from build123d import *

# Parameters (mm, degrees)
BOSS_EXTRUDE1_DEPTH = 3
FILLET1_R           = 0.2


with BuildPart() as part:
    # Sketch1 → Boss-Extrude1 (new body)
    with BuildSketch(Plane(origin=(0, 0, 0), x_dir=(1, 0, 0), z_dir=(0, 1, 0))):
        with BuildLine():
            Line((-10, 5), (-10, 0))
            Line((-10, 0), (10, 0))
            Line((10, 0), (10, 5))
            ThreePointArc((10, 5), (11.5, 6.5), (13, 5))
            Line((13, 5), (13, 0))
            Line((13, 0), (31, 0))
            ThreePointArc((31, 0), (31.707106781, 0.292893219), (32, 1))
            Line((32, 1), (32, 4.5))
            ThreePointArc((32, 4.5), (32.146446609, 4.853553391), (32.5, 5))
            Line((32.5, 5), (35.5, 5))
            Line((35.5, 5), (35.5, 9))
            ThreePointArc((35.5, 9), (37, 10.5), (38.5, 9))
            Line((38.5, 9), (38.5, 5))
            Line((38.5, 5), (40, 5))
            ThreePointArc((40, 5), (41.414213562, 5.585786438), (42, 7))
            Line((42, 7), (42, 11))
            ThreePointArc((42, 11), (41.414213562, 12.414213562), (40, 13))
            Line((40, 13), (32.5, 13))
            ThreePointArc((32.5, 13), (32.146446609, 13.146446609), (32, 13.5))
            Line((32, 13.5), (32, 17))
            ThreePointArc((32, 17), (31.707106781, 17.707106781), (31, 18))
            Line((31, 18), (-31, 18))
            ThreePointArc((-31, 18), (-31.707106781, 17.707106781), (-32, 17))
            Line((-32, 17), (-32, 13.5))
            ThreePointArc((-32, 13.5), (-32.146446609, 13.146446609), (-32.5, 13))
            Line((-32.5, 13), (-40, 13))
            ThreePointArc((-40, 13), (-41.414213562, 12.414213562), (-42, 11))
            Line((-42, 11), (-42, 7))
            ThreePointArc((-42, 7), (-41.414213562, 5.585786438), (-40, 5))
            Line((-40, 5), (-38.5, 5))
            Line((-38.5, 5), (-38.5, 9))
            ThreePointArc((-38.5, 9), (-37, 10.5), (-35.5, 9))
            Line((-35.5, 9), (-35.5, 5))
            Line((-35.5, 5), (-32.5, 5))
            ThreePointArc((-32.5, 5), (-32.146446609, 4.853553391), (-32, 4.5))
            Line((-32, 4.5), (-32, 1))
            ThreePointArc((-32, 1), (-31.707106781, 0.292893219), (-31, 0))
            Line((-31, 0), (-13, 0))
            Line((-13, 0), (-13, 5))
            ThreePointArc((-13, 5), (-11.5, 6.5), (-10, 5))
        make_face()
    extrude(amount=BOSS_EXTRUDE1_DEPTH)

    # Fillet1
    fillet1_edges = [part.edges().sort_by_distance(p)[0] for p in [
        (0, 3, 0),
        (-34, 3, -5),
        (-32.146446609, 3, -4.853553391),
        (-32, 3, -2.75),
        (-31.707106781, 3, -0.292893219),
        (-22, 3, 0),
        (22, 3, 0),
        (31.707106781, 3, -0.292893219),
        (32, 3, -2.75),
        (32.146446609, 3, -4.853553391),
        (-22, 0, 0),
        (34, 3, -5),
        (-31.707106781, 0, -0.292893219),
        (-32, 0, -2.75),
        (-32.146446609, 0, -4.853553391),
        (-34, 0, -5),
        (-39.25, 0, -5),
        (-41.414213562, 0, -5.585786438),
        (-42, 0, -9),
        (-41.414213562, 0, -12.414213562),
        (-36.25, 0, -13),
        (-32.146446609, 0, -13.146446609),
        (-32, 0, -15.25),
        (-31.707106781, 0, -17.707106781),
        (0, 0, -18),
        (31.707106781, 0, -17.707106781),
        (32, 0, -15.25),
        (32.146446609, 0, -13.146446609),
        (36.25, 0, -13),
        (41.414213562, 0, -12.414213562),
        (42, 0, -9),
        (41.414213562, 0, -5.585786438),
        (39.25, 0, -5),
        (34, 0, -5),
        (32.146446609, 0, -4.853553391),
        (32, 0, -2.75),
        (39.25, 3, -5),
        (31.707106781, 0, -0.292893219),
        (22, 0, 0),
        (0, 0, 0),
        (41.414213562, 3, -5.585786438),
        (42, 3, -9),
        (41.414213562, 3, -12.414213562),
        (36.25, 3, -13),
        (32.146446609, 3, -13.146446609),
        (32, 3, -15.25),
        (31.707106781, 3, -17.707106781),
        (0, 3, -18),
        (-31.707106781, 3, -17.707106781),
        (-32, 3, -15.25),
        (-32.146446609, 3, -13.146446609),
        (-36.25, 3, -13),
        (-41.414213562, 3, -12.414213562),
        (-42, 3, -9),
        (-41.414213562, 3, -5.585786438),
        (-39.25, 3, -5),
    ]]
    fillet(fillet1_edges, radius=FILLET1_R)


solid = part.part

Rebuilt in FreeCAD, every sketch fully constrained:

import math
import FreeCAD as App
import Part
import Sketcher

V = App.Vector


def edges_at(feature, points):
    """Names of the edges that pass closest to the given points."""
    edges = feature.Shape.Edges
    near = lambda p: min(range(len(edges)), key=lambda i: edges[i].distToShape(Part.Vertex(*p))[0])
    return sorted({f"Edge{near(p) + 1}" for p in points})

doc = App.newDocument("Part")
body = doc.addObject("PartDesign::Body", "Body")

# Sketch on XZ plane
sketch1 = body.newObject("Sketcher::SketchObject", "Sketch")
sketch1.AttachmentSupport = (doc.getObject("XZ_Plane"), [""])
sketch1.MapMode = "FlatFace"
sketch1.addGeometry(Part.LineSegment(V(-10, -5, 0), V(-10, 0, 0)), False)
sketch1.addGeometry(Part.LineSegment(V(-10, 0, 0), V(10, 0, 0)), False)
sketch1.addGeometry(Part.LineSegment(V(10, 0, 0), V(10, -5, 0)), False)
sketch1.addGeometry(Part.ArcOfCircle(Part.Circle(V(11.5, -5, 0), V(0, 0, 1), 1.5), math.radians(180), math.radians(360)), False)
sketch1.addGeometry(Part.LineSegment(V(13, -5, 0), V(13, 0, 0)), False)
sketch1.addGeometry(Part.LineSegment(V(13, 0, 0), V(31, 0, 0)), False)
sketch1.addGeometry(Part.ArcOfCircle(Part.Circle(V(31, -1, 0), V(0, 0, 1), 1), math.radians(0), math.radians(90)), False)
sketch1.addGeometry(Part.LineSegment(V(32, -1, 0), V(32, -4.5, 0)), False)
sketch1.addGeometry(Part.ArcOfCircle(Part.Circle(V(32.5, -4.5, 0), V(0, 0, 1), 0.5), math.radians(180), math.radians(270)), False)
sketch1.addGeometry(Part.LineSegment(V(32.5, -5, 0), V(35.5, -5, 0)), False)
sketch1.addGeometry(Part.LineSegment(V(35.5, -5, 0), V(35.5, -9, 0)), False)
sketch1.addGeometry(Part.ArcOfCircle(Part.Circle(V(37, -9, 0), V(0, 0, 1), 1.5), math.radians(180), math.radians(360)), False)
sketch1.addGeometry(Part.LineSegment(V(38.5, -9, 0), V(38.5, -5, 0)), False)
sketch1.addGeometry(Part.LineSegment(V(38.5, -5, 0), V(40, -5, 0)), False)
sketch1.addGeometry(Part.ArcOfCircle(Part.Circle(V(40, -7, 0), V(0, 0, 1), 2), math.radians(0), math.radians(90)), False)
sketch1.addGeometry(Part.LineSegment(V(42, -7, 0), V(42, -11, 0)), False)
sketch1.addGeometry(Part.ArcOfCircle(Part.Circle(V(40, -11, 0), V(0, 0, 1), 2), math.radians(-90), math.radians(0)), False)
sketch1.addGeometry(Part.LineSegment(V(40, -13, 0), V(32.5, -13, 0)), False)
sketch1.addGeometry(Part.ArcOfCircle(Part.Circle(V(32.5, -13.5, 0), V(0, 0, 1), 0.5), math.radians(90), math.radians(180)), False)
sketch1.addGeometry(Part.LineSegment(V(32, -13.5, 0), V(32, -17, 0)), False)
sketch1.addGeometry(Part.ArcOfCircle(Part.Circle(V(31, -17, 0), V(0, 0, 1), 1), math.radians(-90), math.radians(0)), False)
sketch1.addGeometry(Part.LineSegment(V(31, -18, 0), V(-31, -18, 0)), False)
sketch1.addGeometry(Part.ArcOfCircle(Part.Circle(V(-31, -17, 0), V(0, 0, 1), 1), math.radians(-180), math.radians(-90)), False)
sketch1.addGeometry(Part.LineSegment(V(-32, -17, 0), V(-32, -13.5, 0)), False)
sketch1.addGeometry(Part.ArcOfCircle(Part.Circle(V(-32.5, -13.5, 0), V(0, 0, 1), 0.5), math.radians(0), math.radians(90)), False)
sketch1.addGeometry(Part.LineSegment(V(-32.5, -13, 0), V(-40, -13, 0)), False)
sketch1.addGeometry(Part.ArcOfCircle(Part.Circle(V(-40, -11, 0), V(0, 0, 1), 2), math.radians(-180), math.radians(-90)), False)
sketch1.addGeometry(Part.LineSegment(V(-42, -11, 0), V(-42, -7, 0)), False)
sketch1.addGeometry(Part.ArcOfCircle(Part.Circle(V(-40, -7, 0), V(0, 0, 1), 2), math.radians(90), math.radians(180)), False)
sketch1.addGeometry(Part.LineSegment(V(-40, -5, 0), V(-38.5, -5, 0)), False)
sketch1.addGeometry(Part.LineSegment(V(-38.5, -5, 0), V(-38.5, -9, 0)), False)
sketch1.addGeometry(Part.ArcOfCircle(Part.Circle(V(-37, -9, 0), V(0, 0, 1), 1.5), math.radians(180), math.radians(360)), False)
sketch1.addGeometry(Part.LineSegment(V(-35.5, -9, 0), V(-35.5, -5, 0)), False)
sketch1.addGeometry(Part.LineSegment(V(-35.5, -5, 0), V(-32.5, -5, 0)), False)
sketch1.addGeometry(Part.ArcOfCircle(Part.Circle(V(-32.5, -4.5, 0), V(0, 0, 1), 0.5), math.radians(-90), math.radians(0)), False)
sketch1.addGeometry(Part.LineSegment(V(-32, -4.5, 0), V(-32, -1, 0)), False)
sketch1.addGeometry(Part.ArcOfCircle(Part.Circle(V(-31, -1, 0), V(0, 0, 1), 1), math.radians(90), math.radians(180)), False)
sketch1.addGeometry(Part.LineSegment(V(-31, 0, 0), V(-13, 0, 0)), False)
sketch1.addGeometry(Part.LineSegment(V(-13, 0, 0), V(-13, -5, 0)), False)
sketch1.addGeometry(Part.ArcOfCircle(Part.Circle(V(-11.5, -5, 0), V(0, 0, 1), 1.5), math.radians(180), math.radians(360)), False)
sketch1.addConstraint(Sketcher.Constraint("Coincident", 0, 2, 1, 1))
sketch1.addConstraint(Sketcher.Constraint("Coincident", 1, 2, 2, 1))
sketch1.addConstraint(Sketcher.Constraint("Tangent", 2, 2, 3, 1))
sketch1.addConstraint(Sketcher.Constraint("Tangent", 3, 2, 4, 1))
sketch1.addConstraint(Sketcher.Constraint("Coincident", 4, 2, 5, 1))
sketch1.addConstraint(Sketcher.Constraint("Tangent", 5, 2, 6, 2))
sketch1.addConstraint(Sketcher.Constraint("Tangent", 6, 1, 7, 1))
sketch1.addConstraint(Sketcher.Constraint("Tangent", 7, 2, 8, 1))
sketch1.addConstraint(Sketcher.Constraint("Tangent", 8, 2, 9, 1))
sketch1.addConstraint(Sketcher.Constraint("Coincident", 9, 2, 10, 1))
sketch1.addConstraint(Sketcher.Constraint("Tangent", 10, 2, 11, 1))
sketch1.addConstraint(Sketcher.Constraint("Tangent", 11, 2, 12, 1))
sketch1.addConstraint(Sketcher.Constraint("Coincident", 12, 2, 13, 1))
sketch1.addConstraint(Sketcher.Constraint("Tangent", 13, 2, 14, 2))
sketch1.addConstraint(Sketcher.Constraint("Tangent", 14, 1, 15, 1))
sketch1.addConstraint(Sketcher.Constraint("Tangent", 15, 2, 16, 2))
sketch1.addConstraint(Sketcher.Constraint("Tangent", 16, 1, 17, 1))
sketch1.addConstraint(Sketcher.Constraint("Tangent", 17, 2, 18, 1))
sketch1.addConstraint(Sketcher.Constraint("Tangent", 18, 2, 19, 1))
sketch1.addConstraint(Sketcher.Constraint("Tangent", 19, 2, 20, 2))
sketch1.addConstraint(Sketcher.Constraint("Tangent", 20, 1, 21, 1))
sketch1.addConstraint(Sketcher.Constraint("Tangent", 21, 2, 22, 2))
sketch1.addConstraint(Sketcher.Constraint("Tangent", 22, 1, 23, 1))
sketch1.addConstraint(Sketcher.Constraint("Tangent", 23, 2, 24, 1))
sketch1.addConstraint(Sketcher.Constraint("Tangent", 24, 2, 25, 1))
sketch1.addConstraint(Sketcher.Constraint("Tangent", 25, 2, 26, 2))
sketch1.addConstraint(Sketcher.Constraint("Tangent", 26, 1, 27, 1))
sketch1.addConstraint(Sketcher.Constraint("Tangent", 27, 2, 28, 2))
sketch1.addConstraint(Sketcher.Constraint("Tangent", 28, 1, 29, 1))
sketch1.addConstraint(Sketcher.Constraint("Coincident", 29, 2, 30, 1))
sketch1.addConstraint(Sketcher.Constraint("Tangent", 30, 2, 31, 1))
sketch1.addConstraint(Sketcher.Constraint("Tangent", 31, 2, 32, 1))
sketch1.addConstraint(Sketcher.Constraint("Coincident", 32, 2, 33, 1))
sketch1.addConstraint(Sketcher.Constraint("Tangent", 33, 2, 34, 1))
sketch1.addConstraint(Sketcher.Constraint("Tangent", 34, 2, 35, 1))
sketch1.addConstraint(Sketcher.Constraint("Tangent", 35, 2, 36, 2))
sketch1.addConstraint(Sketcher.Constraint("Tangent", 36, 1, 37, 1))
sketch1.addConstraint(Sketcher.Constraint("Coincident", 37, 2, 38, 1))
sketch1.addConstraint(Sketcher.Constraint("Tangent", 38, 2, 39, 1))
sketch1.addConstraint(Sketcher.Constraint("Tangent", 39, 2, 0, 1))
sketch1.addConstraint(Sketcher.Constraint("Vertical", 0))
sketch1.addConstraint(Sketcher.Constraint("Horizontal", 1))
sketch1.addConstraint(Sketcher.Constraint("Vertical", 2))
sketch1.addConstraint(Sketcher.Constraint("Vertical", 4))
sketch1.addConstraint(Sketcher.Constraint("Horizontal", 5))
sketch1.addConstraint(Sketcher.Constraint("Vertical", 7))
sketch1.addConstraint(Sketcher.Constraint("Horizontal", 9))
sketch1.addConstraint(Sketcher.Constraint("Vertical", 10))
sketch1.addConstraint(Sketcher.Constraint("Vertical", 12))
sketch1.addConstraint(Sketcher.Constraint("Horizontal", 13))
sketch1.addConstraint(Sketcher.Constraint("Vertical", 15))
sketch1.addConstraint(Sketcher.Constraint("Horizontal", 17))
sketch1.addConstraint(Sketcher.Constraint("Vertical", 19))
sketch1.addConstraint(Sketcher.Constraint("Horizontal", 21))
sketch1.addConstraint(Sketcher.Constraint("Vertical", 23))
sketch1.addConstraint(Sketcher.Constraint("Horizontal", 25))
sketch1.addConstraint(Sketcher.Constraint("Vertical", 27))
sketch1.addConstraint(Sketcher.Constraint("Horizontal", 29))
sketch1.addConstraint(Sketcher.Constraint("Vertical", 30))
sketch1.addConstraint(Sketcher.Constraint("Vertical", 32))
sketch1.addConstraint(Sketcher.Constraint("Horizontal", 33))
sketch1.addConstraint(Sketcher.Constraint("Vertical", 35))
sketch1.addConstraint(Sketcher.Constraint("Horizontal", 37))
sketch1.addConstraint(Sketcher.Constraint("Vertical", 38))
sketch1.addConstraint(Sketcher.Constraint("Equal", 3, 11))
sketch1.addConstraint(Sketcher.Constraint("Equal", 14, 16))
sketch1.addConstraint(Sketcher.Constraint("Equal", 8, 18))
sketch1.addConstraint(Sketcher.Constraint("Equal", 6, 20))
sketch1.addConstraint(Sketcher.Constraint("Equal", 20, 22))
sketch1.addConstraint(Sketcher.Constraint("Equal", 18, 24))
sketch1.addConstraint(Sketcher.Constraint("Equal", 16, 26))
sketch1.addConstraint(Sketcher.Constraint("Equal", 26, 28))
sketch1.addConstraint(Sketcher.Constraint("Equal", 11, 31))
sketch1.addConstraint(Sketcher.Constraint("Equal", 24, 34))
sketch1.addConstraint(Sketcher.Constraint("Equal", 22, 36))
sketch1.addConstraint(Sketcher.Constraint("Equal", 31, 39))
sketch1.addConstraint(Sketcher.Constraint("Symmetric", 0, 2, 1, 2, -1, 1))
sketch1.addConstraint(Sketcher.Constraint("Symmetric", 5, 2, 36, 1, -1, 1))
sketch1.addConstraint(Sketcher.Constraint("Symmetric", 18, 3, 24, 3, -2))
sketch1.addConstraint(Sketcher.Constraint("Symmetric", 14, 3, 28, 3, -2))
sketch1.addConstraint(Sketcher.Constraint("Symmetric", 11, 3, 31, 3, -2))
sketch1.addConstraint(Sketcher.Constraint("PointOnObject", 4, 2, -1))
sketch1.addConstraint(Sketcher.Constraint("Horizontal", 8, 3, 34, 3))
sketch1.addConstraint(Sketcher.Constraint("Horizontal", 3, 3, 39, 3))
sketch1.addConstraint(Sketcher.Constraint("Horizontal", 3, 2, 8, 2))
sketch1.addConstraint(Sketcher.Constraint("Horizontal", 9, 2, 12, 2))
sketch1.addConstraint(Sketcher.Constraint("Vertical", 8, 3, 18, 3))
sketch1.addConstraint(Sketcher.Constraint("Equal", 12, 15))
sketch1.addConstraint(Sketcher.Constraint("Equal", 7, 19))
sketch1.addConstraint(Sketcher.Constraint("Radius", 6, 1.0))
sketch1.addConstraint(Sketcher.Constraint("Radius", 14, 2.0))
sketch1.addConstraint(Sketcher.Constraint("Radius", 3, 1.5))
sketch1.addConstraint(Sketcher.Constraint("Radius", 8, 0.5))
sketch1.addConstraint(Sketcher.Constraint("DistanceX", 1, 1, 1, 2, 20.0))
sketch1.addConstraint(Sketcher.Constraint("DistanceX", 5, 1, 5, 2, 18.0))
sketch1.addConstraint(Sketcher.Constraint("DistanceX", 9, 1, 9, 2, 3.0))
sketch1.addConstraint(Sketcher.Constraint("DistanceY", 0, 1, 0, 2, 5.0))
sketch1.addConstraint(Sketcher.Constraint("DistanceY", 10, 2, 10, 1, 4.0))
sketch1.addConstraint(Sketcher.Constraint("DistanceX", 13, 1, 13, 2, 1.5))
pad1 = body.newObject("PartDesign::Pad", "Pad")
pad1.Profile = sketch1
pad1.Length = 3
pad1.Reversed = True
doc.recompute()

fillet = body.newObject("PartDesign::Fillet", "Fillet")
fillet.Base = (pad1, edges_at(pad1, [
    (0, 3, 0),
    (-34, 3, -5),
    (-32.146, 3, -4.854),
    (-32, 3, -2.75),
    (-31.707, 3, -0.293),
    (-22, 3, 0),
    (22, 3, 0),
    (31.707, 3, -0.293),
    (32, 3, -2.75),
    (32.146, 3, -4.854),
    (-22, 0, 0),
    (34, 3, -5),
    (-31.707, 0, -0.293),
    (-32, 0, -2.75),
    (-32.146, 0, -4.854),
    (-34, 0, -5),
    (-39.25, 0, -5),
    (-41.414, 0, -5.586),
    (-42, 0, -9),
    (-41.414, 0, -12.414),
    (-36.25, 0, -13),
    (-32.146, 0, -13.146),
    (-32, 0, -15.25),
    (-31.707, 0, -17.707),
    (0, 0, -18),
    (31.707, 0, -17.707),
    (32, 0, -15.25),
    (32.146, 0, -13.146),
    (36.25, 0, -13),
    (41.414, 0, -12.414),
    (42, 0, -9),
    (41.414, 0, -5.586),
    (39.25, 0, -5),
    (34, 0, -5),
    (32.146, 0, -4.854),
    (32, 0, -2.75),
    (39.25, 3, -5),
    (31.707, 0, -0.293),
    (22, 0, 0),
    (0, 0, 0),
    (41.414, 3, -5.586),
    (42, 3, -9),
    (41.414, 3, -12.414),
    (36.25, 3, -13),
    (32.146, 3, -13.146),
    (32, 3, -15.25),
    (31.707, 3, -17.707),
    (0, 3, -18),
    (-31.707, 3, -17.707),
    (-32, 3, -15.25),
    (-32.146, 3, -13.146),
    (-36.25, 3, -13),
    (-41.414, 3, -12.414),
    (-42, 3, -9),
    (-41.414, 3, -5.586),
    (-39.25, 3, -5),
]))
fillet.Radius = 0.2

doc.recompute()
